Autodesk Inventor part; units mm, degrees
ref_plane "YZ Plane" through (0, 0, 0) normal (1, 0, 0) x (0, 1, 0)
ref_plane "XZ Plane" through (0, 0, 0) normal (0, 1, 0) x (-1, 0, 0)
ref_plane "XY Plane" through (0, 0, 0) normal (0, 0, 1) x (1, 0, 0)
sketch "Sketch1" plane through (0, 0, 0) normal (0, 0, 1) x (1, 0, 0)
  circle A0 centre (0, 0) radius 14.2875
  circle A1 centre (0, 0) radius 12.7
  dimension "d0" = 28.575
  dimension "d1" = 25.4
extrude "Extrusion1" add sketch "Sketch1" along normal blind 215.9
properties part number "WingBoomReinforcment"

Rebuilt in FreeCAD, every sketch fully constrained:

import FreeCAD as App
import Part
import Sketcher
from FreeCAD import Vector
Q = App.Units.Quantity

doc = App.newDocument("Part")
body = doc.addObject("PartDesign::Body", "Body")

# Sketch on XY plane
sketch1 = body.newObject("Sketcher::SketchObject", "Sketch")
sketch1.AttachmentSupport = (doc.getObject("XY_Plane"), [""])
sketch1.MapMode = "FlatFace"
sketch1.addGeometry([
    Part.Circle(Vector(0, 0, 0), Vector(0, 0, 1), 14),
    Part.Circle(Vector(0, 0, 0), Vector(0, 0, 1), 13),
], False)
sketch1.addConstraint([
    Sketcher.Constraint("Coincident", 0, 3, -1, 1),
    Sketcher.Constraint("Coincident", 1, 3, -1, 1),
    Sketcher.Constraint("Diameter", 1, Q("1 in")),
    Sketcher.Constraint("Diameter", 0, Q("1.125 in")),
])
pad1 = body.newObject("PartDesign::Pad", "Pad")
pad1.Profile = sketch1
pad1.Length = Q("8.5 in")

doc.recompute()
